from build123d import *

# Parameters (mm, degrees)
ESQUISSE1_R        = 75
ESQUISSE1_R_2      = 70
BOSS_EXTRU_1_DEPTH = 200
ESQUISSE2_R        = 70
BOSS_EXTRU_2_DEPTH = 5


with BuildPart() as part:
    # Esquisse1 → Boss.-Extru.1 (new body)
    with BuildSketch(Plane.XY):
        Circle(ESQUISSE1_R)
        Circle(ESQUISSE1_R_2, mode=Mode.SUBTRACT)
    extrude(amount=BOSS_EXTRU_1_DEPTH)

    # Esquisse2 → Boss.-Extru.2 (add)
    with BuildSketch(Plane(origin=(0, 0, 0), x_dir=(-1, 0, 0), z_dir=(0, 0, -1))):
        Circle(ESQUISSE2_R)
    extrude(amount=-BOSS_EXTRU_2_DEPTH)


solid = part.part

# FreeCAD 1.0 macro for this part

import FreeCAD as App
import Part
import Sketcher
Q = App.Units.Quantity

doc = App.newDocument("Part")
params = doc.addObject("Spreadsheet::Sheet", "Params")
for row, (alias, value) in enumerate([
    ("sketch1_diameter", "150 mm"),
    ("sketch1_diameter2", "140 mm"),
    ("pad1_length", "200 mm"),
    ("sketch2_diameter", "140 mm"),
    ("pad2_length", "5 mm"),
], start=1):
    params.set(f"A{row}", alias)
    params.set(f"B{row}", "=" + value)
    params.setAlias(f"B{row}", alias)

body = doc.addObject("PartDesign::Body", "Body")

# Sketch on XY plane
sketch1 = doc.addObject("Sketcher::SketchObject", "Sketch")
body.addObject(sketch1)
sketch1.AttachmentSupport = (doc.XY_Plane, [""])
sketch1.MapMode = "FlatFace"
sketch1.addGeometry([
    Part.Circle(App.Vector(0, 0, 0), App.Vector(0, 0, 1), 75),
    Part.Circle(App.Vector(0, 0, 0), App.Vector(0, 0, 1), 70),
], False)
sketch1.addConstraint([
    Sketcher.Constraint("Coincident", 0, 3, -1, 1),
    Sketcher.Constraint("Coincident", 1, 3, -1, 1),
    Sketcher.Constraint("Diameter", 0, Q("150 mm")),
    Sketcher.Constraint("Diameter", 1, Q("140 mm")),
])
sketch1.setExpression("Constraints[2]", "Params.sketch1_diameter")
sketch1.setExpression("Constraints[3]", "Params.sketch1_diameter2")
pad1 = doc.addObject("PartDesign::Pad", "Pad")
body.addObject(pad1)
pad1.Profile = sketch1
pad1.setExpression("Length", "Params.pad1_length")

# Sketch on XY plane
sketch2 = doc.addObject("Sketcher::SketchObject", "Sketch001")
body.addObject(sketch2)
sketch2.AttachmentSupport = (doc.XY_Plane, [""])
sketch2.MapMode = "FlatFace"
sketch2.addGeometry(Part.Circle(App.Vector(0, 0, 0), App.Vector(0, 0, 1), 70), False)
sketch2.addConstraint([
    Sketcher.Constraint("Coincident", 0, 3, -1, 1),
    Sketcher.Constraint("Diameter", 0, Q("140 mm")),
])
sketch2.setExpression("Constraints[1]", "Params.sketch2_diameter")
pad2 = doc.addObject("PartDesign::Pad", "Pad001")
body.addObject(pad2)
pad2.Profile = sketch2
pad2.setExpression("Length", "Params.pad2_length")

doc.recompute()
